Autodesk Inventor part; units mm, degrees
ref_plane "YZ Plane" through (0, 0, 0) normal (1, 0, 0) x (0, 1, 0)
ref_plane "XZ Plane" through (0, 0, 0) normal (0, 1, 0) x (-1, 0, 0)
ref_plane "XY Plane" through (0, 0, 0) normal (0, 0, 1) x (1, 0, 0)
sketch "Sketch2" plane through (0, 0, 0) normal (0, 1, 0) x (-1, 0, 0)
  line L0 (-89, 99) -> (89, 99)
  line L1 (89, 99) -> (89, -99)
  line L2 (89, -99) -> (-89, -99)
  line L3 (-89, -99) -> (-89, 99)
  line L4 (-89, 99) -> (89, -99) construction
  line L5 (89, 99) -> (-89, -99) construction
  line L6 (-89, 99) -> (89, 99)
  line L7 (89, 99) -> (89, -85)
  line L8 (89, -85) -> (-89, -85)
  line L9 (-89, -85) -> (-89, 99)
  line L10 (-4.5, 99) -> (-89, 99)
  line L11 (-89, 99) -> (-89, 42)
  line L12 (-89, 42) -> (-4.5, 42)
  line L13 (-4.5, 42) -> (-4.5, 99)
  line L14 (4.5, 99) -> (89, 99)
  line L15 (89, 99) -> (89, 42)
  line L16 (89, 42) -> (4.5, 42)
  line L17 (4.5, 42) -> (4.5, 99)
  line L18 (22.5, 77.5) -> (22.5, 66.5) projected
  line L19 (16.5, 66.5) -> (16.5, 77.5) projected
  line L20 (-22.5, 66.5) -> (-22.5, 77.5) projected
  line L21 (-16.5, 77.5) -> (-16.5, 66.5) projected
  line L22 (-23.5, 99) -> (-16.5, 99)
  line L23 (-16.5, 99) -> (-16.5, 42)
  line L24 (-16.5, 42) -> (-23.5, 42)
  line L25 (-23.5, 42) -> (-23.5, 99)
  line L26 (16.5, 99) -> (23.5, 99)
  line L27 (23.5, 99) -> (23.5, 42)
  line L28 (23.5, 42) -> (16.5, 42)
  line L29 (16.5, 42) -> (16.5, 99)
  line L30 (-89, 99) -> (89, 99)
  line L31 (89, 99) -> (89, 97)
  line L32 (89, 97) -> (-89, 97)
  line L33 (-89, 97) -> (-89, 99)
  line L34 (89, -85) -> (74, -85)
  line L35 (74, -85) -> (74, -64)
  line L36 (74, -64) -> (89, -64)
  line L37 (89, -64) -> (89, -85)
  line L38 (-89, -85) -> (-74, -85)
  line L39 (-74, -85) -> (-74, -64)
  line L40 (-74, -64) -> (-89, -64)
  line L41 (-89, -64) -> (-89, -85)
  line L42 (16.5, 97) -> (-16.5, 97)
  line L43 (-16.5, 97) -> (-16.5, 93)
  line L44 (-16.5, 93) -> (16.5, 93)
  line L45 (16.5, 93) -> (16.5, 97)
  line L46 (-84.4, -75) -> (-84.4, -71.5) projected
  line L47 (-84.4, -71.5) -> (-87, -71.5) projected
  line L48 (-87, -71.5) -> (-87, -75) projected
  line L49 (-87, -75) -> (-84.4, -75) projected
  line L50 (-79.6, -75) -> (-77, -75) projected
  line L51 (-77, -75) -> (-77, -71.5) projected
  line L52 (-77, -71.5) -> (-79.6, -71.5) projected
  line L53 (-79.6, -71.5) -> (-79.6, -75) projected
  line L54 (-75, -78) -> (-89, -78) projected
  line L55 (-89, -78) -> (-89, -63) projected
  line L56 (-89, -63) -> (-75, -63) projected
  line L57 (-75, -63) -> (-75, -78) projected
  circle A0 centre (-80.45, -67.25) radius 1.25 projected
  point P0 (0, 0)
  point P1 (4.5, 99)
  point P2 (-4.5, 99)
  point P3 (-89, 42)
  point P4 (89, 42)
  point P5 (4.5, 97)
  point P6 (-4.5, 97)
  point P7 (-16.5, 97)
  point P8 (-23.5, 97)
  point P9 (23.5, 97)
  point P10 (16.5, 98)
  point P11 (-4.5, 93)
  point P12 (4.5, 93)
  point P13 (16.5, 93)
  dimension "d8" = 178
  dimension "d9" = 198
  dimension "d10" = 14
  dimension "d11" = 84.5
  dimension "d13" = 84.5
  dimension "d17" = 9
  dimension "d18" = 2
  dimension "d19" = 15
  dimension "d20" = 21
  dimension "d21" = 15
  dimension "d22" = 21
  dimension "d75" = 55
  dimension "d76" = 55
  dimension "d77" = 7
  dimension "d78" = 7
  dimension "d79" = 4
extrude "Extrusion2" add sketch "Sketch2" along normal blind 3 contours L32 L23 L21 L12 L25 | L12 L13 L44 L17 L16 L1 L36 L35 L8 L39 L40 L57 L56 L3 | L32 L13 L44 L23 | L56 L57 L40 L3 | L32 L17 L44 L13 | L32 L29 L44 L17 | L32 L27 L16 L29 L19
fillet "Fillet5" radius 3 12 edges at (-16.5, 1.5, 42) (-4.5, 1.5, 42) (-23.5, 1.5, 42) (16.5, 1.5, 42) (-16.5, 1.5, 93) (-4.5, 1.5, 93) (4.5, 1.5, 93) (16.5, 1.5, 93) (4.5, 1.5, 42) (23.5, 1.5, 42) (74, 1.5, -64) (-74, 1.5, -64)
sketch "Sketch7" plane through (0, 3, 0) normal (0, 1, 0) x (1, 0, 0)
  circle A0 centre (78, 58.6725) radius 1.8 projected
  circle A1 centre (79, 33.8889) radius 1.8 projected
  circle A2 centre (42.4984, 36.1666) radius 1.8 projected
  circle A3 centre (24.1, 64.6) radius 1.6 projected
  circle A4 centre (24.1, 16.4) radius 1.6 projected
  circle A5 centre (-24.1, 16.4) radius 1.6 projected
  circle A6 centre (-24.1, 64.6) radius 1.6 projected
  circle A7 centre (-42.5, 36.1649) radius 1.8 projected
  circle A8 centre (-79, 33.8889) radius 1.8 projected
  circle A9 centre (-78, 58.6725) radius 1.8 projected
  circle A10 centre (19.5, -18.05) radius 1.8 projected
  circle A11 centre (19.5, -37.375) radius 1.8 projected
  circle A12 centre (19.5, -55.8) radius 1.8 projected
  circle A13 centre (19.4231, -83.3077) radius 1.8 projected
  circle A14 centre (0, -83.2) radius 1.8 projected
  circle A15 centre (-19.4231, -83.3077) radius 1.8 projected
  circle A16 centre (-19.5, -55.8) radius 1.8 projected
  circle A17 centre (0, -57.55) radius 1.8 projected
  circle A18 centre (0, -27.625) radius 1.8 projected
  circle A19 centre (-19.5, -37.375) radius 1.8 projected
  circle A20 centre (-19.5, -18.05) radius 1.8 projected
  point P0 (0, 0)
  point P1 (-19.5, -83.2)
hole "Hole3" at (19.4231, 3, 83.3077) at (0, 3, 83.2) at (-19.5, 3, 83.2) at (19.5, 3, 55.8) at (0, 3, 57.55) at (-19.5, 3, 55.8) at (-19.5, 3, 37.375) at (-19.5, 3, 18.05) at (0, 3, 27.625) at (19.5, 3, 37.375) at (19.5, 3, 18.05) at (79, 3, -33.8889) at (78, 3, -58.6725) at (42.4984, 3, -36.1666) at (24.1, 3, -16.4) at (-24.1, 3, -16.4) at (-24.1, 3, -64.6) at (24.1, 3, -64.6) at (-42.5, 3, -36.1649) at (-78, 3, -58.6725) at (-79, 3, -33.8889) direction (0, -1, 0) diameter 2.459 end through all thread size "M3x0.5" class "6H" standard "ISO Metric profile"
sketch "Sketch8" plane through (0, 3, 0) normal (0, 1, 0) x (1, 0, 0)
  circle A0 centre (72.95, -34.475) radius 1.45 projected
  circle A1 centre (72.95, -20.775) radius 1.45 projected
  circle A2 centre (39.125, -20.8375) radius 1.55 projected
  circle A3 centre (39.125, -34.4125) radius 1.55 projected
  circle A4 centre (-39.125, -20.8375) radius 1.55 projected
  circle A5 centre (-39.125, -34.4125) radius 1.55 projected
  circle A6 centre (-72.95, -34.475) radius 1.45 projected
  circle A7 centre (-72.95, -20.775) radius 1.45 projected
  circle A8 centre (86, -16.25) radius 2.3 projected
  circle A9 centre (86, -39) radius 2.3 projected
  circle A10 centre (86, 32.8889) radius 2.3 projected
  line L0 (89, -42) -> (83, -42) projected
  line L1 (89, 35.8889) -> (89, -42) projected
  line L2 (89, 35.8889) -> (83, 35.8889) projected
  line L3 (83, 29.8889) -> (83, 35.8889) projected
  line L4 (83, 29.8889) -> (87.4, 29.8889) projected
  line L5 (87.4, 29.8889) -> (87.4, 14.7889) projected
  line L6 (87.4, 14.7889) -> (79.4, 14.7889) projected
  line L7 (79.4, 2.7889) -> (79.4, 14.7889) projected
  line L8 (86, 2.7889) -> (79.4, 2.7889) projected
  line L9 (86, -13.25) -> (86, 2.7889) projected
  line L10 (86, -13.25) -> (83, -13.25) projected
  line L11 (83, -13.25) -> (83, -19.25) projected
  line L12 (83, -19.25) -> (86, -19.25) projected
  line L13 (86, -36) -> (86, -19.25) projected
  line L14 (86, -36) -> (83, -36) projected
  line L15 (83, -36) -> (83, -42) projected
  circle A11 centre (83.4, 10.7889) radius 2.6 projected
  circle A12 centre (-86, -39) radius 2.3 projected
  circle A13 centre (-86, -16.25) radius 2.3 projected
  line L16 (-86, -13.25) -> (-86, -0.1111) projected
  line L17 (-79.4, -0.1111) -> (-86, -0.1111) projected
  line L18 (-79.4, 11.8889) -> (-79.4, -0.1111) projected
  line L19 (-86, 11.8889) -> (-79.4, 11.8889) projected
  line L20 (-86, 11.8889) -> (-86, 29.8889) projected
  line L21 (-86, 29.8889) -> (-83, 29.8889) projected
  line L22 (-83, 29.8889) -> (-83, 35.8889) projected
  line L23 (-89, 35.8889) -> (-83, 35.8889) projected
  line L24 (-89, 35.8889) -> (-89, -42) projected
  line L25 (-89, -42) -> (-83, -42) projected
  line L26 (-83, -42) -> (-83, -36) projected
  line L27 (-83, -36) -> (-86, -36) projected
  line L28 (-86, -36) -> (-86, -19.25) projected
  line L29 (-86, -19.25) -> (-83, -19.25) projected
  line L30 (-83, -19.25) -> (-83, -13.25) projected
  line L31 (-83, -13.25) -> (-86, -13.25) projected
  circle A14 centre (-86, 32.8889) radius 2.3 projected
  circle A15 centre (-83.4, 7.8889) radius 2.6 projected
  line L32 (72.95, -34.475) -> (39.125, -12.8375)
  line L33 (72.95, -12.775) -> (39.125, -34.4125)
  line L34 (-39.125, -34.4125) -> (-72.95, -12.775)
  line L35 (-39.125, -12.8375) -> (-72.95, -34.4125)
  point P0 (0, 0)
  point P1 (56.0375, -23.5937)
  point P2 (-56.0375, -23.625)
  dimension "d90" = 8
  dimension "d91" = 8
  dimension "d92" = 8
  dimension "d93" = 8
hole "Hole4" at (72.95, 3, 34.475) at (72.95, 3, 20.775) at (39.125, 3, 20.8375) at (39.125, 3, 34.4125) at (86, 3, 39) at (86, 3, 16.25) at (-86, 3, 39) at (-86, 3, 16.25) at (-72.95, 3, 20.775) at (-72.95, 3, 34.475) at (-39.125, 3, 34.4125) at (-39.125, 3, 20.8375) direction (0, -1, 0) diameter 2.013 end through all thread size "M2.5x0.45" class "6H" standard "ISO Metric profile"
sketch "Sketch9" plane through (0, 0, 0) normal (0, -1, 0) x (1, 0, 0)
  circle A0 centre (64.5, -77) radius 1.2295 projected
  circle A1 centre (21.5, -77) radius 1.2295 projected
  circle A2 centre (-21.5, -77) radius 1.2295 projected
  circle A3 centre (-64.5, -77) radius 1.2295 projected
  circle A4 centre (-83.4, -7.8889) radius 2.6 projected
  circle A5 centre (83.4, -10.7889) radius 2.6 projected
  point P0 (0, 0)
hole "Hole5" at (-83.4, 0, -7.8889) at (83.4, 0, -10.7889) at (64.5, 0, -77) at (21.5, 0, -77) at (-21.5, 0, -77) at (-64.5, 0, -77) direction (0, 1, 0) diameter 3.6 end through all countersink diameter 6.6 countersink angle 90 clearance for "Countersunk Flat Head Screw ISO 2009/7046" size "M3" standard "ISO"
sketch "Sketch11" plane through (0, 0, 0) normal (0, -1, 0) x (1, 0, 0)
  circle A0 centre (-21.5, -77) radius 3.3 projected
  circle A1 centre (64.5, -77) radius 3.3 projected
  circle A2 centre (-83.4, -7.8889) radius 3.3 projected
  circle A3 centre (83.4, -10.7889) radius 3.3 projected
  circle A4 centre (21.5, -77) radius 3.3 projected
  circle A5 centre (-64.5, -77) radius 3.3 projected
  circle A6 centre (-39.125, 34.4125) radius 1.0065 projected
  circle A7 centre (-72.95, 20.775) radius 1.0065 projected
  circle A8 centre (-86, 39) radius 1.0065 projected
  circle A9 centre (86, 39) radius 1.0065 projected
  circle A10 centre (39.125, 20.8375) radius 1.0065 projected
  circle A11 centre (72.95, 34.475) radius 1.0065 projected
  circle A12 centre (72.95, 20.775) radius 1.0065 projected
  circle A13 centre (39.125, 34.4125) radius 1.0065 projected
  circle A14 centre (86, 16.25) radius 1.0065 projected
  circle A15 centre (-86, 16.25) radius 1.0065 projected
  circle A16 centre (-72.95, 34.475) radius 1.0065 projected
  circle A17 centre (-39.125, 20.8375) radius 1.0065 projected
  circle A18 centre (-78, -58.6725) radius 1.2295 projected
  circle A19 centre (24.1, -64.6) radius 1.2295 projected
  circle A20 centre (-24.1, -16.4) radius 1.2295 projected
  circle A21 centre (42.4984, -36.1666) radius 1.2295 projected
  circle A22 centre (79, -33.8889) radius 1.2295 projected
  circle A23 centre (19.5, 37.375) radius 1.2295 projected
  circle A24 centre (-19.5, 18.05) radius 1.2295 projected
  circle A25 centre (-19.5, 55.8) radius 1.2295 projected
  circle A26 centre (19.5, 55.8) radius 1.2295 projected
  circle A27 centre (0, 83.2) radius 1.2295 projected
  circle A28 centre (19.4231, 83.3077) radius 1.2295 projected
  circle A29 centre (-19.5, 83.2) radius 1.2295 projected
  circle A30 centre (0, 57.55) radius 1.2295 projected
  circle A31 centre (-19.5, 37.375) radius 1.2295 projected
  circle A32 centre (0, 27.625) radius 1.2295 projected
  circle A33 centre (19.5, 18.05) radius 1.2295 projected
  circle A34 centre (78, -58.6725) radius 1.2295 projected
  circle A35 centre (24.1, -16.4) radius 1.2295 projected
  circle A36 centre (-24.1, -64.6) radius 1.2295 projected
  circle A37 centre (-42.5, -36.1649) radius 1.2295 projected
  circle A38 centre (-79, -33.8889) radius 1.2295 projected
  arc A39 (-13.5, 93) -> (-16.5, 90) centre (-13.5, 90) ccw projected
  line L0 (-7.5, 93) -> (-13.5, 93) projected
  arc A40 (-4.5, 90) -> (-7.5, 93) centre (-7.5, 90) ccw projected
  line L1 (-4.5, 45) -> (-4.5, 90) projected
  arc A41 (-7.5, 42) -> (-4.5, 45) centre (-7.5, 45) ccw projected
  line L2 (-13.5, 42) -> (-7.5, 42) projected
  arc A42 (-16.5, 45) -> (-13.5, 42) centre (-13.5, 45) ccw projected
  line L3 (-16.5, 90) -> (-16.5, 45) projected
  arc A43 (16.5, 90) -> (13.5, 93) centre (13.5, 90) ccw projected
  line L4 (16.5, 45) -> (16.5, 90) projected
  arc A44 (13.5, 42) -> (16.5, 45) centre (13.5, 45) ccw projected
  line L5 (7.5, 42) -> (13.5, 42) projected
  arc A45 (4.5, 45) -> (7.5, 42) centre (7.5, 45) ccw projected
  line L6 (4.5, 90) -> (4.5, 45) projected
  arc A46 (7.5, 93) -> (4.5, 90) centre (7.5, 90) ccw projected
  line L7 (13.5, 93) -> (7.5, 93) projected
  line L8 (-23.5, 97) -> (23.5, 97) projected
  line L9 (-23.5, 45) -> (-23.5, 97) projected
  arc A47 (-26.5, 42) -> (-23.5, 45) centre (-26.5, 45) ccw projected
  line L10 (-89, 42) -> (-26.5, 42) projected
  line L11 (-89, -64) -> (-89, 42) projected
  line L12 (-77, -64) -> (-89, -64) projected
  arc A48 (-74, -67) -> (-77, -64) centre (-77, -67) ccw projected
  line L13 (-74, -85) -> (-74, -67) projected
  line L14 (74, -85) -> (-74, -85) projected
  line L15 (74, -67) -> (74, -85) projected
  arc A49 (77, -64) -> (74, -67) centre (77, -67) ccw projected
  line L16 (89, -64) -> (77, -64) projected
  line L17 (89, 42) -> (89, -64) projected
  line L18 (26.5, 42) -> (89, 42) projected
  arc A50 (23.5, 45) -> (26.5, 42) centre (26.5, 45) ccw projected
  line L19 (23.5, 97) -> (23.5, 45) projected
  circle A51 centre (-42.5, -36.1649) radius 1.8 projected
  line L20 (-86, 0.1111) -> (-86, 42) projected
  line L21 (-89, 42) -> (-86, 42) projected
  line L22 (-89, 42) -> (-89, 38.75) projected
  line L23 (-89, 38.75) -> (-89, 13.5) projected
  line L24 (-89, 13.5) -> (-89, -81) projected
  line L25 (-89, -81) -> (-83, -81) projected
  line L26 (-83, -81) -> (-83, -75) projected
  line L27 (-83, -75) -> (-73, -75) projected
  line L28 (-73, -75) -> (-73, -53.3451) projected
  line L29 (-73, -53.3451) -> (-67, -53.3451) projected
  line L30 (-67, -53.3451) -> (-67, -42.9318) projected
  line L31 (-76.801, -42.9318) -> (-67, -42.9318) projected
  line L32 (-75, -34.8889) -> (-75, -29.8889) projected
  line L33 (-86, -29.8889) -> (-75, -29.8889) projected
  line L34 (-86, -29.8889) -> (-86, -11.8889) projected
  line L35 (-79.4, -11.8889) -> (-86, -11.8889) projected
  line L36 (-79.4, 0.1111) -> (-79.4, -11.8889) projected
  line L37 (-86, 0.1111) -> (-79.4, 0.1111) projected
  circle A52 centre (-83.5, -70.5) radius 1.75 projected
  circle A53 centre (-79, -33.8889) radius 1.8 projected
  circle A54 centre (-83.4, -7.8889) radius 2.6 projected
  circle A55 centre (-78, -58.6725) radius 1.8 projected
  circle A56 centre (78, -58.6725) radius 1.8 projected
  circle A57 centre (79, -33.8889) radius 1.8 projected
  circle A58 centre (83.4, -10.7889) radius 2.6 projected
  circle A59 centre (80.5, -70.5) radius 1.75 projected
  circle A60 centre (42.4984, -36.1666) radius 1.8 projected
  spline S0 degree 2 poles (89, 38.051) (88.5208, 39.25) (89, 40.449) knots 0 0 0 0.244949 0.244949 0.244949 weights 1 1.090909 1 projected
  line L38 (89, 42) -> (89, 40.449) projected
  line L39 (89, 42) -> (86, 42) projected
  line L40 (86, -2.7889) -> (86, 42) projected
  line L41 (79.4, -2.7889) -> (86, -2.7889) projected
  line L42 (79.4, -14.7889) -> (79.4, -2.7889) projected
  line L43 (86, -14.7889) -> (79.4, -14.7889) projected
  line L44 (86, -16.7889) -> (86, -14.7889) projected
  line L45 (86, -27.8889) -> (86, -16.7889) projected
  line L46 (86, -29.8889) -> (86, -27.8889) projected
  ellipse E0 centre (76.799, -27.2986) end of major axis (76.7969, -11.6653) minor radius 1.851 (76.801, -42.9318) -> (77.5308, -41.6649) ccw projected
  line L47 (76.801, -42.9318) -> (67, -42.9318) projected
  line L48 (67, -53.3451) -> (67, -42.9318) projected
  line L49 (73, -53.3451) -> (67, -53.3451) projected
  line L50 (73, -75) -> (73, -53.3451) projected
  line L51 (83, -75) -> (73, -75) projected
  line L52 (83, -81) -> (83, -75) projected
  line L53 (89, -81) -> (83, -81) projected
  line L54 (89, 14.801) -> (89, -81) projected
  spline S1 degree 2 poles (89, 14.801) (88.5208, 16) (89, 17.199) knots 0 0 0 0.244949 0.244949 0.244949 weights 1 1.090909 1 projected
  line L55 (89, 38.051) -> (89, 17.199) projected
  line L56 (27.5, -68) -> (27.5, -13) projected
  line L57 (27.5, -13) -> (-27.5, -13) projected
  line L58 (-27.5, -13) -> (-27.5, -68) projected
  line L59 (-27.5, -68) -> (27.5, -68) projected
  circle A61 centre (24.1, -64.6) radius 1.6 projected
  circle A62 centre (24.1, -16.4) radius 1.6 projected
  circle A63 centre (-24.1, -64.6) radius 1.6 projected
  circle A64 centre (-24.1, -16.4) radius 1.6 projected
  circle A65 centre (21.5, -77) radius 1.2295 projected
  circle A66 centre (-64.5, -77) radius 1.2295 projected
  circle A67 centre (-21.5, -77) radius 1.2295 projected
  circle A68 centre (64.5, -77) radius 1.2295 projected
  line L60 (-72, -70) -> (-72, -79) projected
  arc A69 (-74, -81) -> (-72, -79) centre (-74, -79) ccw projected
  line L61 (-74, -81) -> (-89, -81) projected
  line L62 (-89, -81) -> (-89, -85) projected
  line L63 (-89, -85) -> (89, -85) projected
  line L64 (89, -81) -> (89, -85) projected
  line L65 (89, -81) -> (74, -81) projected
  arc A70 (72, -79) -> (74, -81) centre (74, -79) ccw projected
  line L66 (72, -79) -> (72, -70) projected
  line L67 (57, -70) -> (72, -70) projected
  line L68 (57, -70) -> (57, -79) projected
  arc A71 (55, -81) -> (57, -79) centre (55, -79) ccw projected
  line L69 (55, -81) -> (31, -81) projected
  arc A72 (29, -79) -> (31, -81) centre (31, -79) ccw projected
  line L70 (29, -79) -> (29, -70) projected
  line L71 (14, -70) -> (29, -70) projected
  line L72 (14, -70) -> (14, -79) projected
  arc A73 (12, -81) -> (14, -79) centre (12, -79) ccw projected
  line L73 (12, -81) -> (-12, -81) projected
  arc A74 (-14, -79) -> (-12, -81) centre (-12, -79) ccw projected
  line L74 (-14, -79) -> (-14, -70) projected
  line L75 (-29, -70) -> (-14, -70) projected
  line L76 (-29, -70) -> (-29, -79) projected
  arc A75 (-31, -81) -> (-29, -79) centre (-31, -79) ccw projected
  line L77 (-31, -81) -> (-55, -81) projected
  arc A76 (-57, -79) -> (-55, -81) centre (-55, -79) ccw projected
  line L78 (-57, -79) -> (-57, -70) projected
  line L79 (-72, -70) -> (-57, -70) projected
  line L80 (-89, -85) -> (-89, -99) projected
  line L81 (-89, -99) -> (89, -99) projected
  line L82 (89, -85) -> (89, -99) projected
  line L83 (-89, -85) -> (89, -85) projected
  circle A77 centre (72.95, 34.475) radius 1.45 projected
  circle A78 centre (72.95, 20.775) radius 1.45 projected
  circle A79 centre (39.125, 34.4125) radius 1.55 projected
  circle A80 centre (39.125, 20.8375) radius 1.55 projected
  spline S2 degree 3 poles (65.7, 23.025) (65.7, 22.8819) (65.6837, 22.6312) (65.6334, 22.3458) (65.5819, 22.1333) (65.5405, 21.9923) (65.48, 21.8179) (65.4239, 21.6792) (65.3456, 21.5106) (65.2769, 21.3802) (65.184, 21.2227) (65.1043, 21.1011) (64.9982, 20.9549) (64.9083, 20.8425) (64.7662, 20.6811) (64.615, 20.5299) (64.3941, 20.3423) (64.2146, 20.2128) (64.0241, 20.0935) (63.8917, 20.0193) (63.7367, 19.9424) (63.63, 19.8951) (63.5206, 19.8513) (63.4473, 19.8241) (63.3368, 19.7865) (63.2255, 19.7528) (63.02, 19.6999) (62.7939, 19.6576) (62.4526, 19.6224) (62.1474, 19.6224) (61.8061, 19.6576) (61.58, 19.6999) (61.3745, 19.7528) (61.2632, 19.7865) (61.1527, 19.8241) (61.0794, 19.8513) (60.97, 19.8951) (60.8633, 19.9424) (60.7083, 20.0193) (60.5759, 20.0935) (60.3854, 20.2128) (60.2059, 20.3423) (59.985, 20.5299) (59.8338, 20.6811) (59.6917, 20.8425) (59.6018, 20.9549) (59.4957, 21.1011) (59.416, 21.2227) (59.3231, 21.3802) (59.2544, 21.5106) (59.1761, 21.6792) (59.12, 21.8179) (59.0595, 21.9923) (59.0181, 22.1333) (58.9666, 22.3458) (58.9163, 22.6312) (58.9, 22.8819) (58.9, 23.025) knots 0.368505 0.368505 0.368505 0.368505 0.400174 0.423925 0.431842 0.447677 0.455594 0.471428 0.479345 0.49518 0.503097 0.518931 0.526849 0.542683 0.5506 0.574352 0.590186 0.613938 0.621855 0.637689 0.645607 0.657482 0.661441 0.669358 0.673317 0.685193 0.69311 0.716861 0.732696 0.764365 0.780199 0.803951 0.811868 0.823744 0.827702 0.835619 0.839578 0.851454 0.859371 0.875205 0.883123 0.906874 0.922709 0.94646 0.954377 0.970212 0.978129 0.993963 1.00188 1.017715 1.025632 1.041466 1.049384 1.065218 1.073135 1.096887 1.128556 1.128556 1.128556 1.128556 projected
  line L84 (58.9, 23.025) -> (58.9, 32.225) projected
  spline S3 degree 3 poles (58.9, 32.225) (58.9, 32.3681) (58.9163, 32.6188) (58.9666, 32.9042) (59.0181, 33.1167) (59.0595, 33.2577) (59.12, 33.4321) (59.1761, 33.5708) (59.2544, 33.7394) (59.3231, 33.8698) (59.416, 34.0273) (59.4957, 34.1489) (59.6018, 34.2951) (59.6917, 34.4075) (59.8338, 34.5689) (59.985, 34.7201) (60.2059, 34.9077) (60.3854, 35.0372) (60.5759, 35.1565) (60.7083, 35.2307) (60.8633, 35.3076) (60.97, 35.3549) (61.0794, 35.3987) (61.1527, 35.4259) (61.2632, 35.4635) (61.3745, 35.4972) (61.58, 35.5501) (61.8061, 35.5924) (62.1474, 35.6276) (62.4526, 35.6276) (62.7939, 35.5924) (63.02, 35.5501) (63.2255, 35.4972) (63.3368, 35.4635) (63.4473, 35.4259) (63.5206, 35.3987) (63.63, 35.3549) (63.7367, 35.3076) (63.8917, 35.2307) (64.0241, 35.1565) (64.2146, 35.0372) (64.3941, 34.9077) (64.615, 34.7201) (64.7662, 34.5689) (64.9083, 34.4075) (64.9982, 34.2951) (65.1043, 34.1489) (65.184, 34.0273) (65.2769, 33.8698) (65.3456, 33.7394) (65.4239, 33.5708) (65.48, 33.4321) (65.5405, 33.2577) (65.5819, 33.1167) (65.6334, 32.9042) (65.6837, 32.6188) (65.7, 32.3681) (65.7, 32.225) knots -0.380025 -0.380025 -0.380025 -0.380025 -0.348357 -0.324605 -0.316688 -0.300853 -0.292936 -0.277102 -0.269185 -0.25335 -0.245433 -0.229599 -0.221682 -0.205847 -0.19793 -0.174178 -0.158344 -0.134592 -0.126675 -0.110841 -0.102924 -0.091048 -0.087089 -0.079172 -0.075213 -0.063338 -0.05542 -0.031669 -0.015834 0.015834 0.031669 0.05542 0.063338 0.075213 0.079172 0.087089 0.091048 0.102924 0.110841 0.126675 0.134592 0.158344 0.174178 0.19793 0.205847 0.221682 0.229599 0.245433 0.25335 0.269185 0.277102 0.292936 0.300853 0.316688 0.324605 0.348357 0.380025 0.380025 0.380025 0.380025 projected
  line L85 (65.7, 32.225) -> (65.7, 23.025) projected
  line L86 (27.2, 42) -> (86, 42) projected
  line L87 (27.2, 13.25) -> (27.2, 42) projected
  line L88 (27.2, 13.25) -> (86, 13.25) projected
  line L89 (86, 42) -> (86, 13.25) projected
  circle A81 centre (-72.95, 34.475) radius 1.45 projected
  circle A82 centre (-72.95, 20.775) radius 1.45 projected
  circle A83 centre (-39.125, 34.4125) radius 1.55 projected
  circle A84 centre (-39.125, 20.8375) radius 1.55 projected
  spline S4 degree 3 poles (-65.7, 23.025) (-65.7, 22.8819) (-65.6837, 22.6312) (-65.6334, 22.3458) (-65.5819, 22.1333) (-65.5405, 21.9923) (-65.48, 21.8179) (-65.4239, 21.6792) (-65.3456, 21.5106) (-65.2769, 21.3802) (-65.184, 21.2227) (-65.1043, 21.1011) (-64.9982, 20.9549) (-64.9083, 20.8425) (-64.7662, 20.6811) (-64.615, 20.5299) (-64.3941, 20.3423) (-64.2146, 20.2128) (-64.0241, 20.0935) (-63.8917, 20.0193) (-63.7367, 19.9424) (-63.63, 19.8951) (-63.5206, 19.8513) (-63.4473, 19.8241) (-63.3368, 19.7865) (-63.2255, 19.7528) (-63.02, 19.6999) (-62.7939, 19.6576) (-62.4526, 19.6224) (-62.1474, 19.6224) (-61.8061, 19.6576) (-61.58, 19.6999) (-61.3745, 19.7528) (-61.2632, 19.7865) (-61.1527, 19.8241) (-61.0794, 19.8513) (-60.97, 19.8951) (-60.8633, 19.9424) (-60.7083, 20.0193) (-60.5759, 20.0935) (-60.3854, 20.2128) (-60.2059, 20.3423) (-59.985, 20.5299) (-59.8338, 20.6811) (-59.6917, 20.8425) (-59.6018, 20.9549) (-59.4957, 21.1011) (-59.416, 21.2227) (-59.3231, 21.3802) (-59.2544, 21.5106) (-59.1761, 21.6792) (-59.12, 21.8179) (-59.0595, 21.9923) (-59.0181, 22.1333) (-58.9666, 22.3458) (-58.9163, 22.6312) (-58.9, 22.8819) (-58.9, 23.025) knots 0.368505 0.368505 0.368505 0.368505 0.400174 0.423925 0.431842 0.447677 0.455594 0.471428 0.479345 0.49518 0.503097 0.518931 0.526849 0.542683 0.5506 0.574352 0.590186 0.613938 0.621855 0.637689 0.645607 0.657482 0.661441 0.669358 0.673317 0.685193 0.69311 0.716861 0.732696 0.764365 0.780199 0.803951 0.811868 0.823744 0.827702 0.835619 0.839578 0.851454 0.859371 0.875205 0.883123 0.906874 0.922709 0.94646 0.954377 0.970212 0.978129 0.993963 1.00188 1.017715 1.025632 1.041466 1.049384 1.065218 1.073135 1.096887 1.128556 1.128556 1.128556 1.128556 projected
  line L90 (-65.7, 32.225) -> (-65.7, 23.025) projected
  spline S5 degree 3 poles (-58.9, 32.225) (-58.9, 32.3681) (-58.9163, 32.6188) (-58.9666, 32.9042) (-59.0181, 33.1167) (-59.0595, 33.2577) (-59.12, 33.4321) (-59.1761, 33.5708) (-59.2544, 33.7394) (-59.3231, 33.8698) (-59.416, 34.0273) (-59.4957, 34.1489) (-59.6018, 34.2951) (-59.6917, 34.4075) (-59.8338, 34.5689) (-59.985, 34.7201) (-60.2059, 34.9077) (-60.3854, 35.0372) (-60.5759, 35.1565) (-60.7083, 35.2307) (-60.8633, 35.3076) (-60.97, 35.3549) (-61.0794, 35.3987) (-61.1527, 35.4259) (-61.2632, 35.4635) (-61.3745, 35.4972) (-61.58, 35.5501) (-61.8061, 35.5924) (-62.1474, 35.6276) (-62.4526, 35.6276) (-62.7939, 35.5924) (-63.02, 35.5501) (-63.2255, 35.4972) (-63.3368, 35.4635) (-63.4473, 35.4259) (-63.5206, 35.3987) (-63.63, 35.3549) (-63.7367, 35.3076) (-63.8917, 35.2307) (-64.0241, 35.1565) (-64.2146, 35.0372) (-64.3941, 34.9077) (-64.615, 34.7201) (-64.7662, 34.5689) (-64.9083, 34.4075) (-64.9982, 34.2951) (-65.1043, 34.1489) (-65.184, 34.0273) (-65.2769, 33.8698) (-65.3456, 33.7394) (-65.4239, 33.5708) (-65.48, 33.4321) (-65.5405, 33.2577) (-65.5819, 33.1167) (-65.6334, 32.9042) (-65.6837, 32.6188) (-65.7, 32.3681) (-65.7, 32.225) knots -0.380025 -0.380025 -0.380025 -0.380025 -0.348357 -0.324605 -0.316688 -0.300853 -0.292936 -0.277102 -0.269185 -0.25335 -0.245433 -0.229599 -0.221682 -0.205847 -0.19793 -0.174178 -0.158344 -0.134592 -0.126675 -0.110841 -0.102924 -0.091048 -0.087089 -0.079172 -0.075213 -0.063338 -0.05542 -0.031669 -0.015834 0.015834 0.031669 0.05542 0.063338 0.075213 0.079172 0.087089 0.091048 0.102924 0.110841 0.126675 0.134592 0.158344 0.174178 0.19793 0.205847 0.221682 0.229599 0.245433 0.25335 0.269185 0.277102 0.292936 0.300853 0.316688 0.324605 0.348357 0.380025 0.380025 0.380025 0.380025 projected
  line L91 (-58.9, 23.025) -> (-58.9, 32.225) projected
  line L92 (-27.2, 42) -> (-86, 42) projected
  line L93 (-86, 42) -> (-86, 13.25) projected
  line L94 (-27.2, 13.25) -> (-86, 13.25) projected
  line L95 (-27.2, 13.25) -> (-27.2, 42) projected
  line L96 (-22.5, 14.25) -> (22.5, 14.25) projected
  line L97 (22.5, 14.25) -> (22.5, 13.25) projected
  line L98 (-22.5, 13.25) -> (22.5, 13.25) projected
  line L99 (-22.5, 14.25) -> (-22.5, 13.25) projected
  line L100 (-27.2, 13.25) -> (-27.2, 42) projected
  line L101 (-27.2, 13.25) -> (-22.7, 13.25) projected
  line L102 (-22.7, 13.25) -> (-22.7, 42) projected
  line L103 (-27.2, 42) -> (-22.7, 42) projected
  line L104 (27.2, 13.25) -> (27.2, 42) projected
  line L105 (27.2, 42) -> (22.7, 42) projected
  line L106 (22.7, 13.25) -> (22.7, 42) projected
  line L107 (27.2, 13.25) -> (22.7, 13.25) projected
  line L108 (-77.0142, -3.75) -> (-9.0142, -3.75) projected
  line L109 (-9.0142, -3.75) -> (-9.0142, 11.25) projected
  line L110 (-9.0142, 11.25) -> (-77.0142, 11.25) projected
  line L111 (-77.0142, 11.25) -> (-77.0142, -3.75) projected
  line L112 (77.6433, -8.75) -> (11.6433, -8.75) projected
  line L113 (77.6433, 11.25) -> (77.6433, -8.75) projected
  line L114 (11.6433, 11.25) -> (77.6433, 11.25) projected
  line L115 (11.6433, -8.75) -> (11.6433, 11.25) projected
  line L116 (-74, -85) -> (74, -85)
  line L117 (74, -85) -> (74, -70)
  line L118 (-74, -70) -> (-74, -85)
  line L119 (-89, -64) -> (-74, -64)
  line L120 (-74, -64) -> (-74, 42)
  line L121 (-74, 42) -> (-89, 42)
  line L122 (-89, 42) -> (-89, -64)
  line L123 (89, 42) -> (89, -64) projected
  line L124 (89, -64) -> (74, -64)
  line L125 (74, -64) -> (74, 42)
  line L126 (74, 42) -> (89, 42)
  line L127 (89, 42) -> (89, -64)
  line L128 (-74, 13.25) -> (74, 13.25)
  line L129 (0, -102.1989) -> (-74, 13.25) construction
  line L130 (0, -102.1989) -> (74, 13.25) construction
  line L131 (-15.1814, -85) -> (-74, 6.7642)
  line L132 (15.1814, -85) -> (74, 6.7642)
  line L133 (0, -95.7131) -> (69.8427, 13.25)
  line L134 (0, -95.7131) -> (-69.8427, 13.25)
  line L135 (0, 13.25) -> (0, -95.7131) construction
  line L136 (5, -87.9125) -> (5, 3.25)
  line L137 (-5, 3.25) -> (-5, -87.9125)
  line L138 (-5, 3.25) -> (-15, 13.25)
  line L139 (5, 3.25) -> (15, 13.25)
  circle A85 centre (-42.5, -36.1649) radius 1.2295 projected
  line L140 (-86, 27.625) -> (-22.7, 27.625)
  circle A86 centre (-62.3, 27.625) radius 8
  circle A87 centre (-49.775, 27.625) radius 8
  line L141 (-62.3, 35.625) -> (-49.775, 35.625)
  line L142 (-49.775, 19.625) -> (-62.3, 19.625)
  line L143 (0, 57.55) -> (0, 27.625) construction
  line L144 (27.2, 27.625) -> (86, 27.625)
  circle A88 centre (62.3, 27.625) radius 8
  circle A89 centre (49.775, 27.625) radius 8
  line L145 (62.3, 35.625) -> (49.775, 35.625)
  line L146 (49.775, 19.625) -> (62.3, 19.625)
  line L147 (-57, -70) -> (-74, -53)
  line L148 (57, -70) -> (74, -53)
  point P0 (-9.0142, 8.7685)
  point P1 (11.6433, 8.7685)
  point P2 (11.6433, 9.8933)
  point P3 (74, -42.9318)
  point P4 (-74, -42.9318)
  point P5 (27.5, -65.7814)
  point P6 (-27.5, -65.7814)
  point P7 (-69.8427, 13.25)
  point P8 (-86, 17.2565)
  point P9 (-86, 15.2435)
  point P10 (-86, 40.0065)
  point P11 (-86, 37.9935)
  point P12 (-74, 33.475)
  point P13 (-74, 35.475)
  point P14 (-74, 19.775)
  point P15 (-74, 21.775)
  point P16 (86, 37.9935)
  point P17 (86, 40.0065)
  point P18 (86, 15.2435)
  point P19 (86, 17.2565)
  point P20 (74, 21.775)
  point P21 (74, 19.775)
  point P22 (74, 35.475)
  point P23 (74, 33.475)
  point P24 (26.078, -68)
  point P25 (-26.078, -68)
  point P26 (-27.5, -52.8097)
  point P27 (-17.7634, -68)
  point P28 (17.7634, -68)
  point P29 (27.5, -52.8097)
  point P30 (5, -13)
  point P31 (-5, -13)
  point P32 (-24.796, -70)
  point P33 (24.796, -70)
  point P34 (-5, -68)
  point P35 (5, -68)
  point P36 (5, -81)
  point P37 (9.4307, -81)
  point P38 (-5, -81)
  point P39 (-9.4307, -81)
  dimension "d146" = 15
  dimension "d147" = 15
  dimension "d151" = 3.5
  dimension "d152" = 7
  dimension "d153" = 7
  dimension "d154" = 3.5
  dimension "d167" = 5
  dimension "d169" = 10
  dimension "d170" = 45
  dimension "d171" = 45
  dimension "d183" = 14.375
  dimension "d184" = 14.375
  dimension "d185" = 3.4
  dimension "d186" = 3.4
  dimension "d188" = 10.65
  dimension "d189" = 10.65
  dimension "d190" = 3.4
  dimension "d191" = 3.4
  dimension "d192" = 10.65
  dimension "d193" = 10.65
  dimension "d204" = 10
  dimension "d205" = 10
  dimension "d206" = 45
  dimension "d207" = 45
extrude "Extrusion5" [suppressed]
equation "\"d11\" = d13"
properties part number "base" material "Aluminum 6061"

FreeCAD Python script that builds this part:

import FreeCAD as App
import Part
import Sketcher
from FreeCAD import Vector


def edges_at(feature, points):
    """Names of the edges that pass closest to the given points."""
    edges = feature.Shape.Edges
    near = lambda p: min(range(len(edges)), key=lambda i: edges[i].distToShape(Part.Vertex(*p))[0])
    return sorted({f"Edge{near(p) + 1}" for p in points})

doc = App.newDocument("Part")
body = doc.addObject("PartDesign::Body", "Body")

# Sketch on XZ plane
sketch1 = body.newObject("Sketcher::SketchObject", "Sketch")
sketch1.AttachmentSupport = (doc.getObject("XZ_Plane"), [""])
sketch1.MapMode = "FlatFace"
sketch1.addGeometry([
    Part.LineSegment(Vector(24, 97, 0), Vector(24, 42, 0)),  # 0
    Part.LineSegment(Vector(24, 42, 0), Vector(89, 42, 0)),  # 1
    Part.LineSegment(Vector(89, 42, 0), Vector(89, -64, 0)),  # 2
    Part.LineSegment(Vector(89, -64, 0), Vector(74, -64, 0)),  # 3
    Part.LineSegment(Vector(74, -64, 0), Vector(74, -85, 0)),  # 4
    Part.LineSegment(Vector(74, -85, 0), Vector(-74, -85, 0)),  # 5
    Part.LineSegment(Vector(-74, -85, 0), Vector(-74, -64, 0)),  # 6
    Part.LineSegment(Vector(-74, -64, 0), Vector(-89, -64, 0)),  # 7
    Part.LineSegment(Vector(-89, -64, 0), Vector(-89, 42, 0)),  # 8
    Part.LineSegment(Vector(-89, 42, 0), Vector(-24, 42, 0)),  # 9
    Part.LineSegment(Vector(-24, 42, 0), Vector(-24, 97, 0)),  # 10
    Part.LineSegment(Vector(-24, 97, 0), Vector(24, 97, 0)),  # 11
    Part.LineSegment(Vector(16, 93, 0), Vector(4, 93, 0)),  # 12
    Part.LineSegment(Vector(4, 93, 0), Vector(4, 42, 0)),  # 13
    Part.LineSegment(Vector(4, 42, 0), Vector(16, 42, 0)),  # 14
    Part.LineSegment(Vector(16, 42, 0), Vector(16, 93, 0)),  # 15
    Part.LineSegment(Vector(-4, 42, 0), Vector(-4, 93, 0)),  # 16
    Part.LineSegment(Vector(-4, 93, 0), Vector(-16, 93, 0)),  # 17
    Part.LineSegment(Vector(-16, 93, 0), Vector(-16, 42, 0)),  # 18
    Part.LineSegment(Vector(-16, 42, 0), Vector(-4, 42, 0)),  # 19
], False)
sketch1.addConstraint([
    Sketcher.Constraint("Coincident", 0, 2, 1, 1),
    Sketcher.Constraint("Coincident", 1, 2, 2, 1),
    Sketcher.Constraint("Coincident", 2, 2, 3, 1),
    Sketcher.Constraint("Coincident", 3, 2, 4, 1),
    Sketcher.Constraint("Coincident", 4, 2, 5, 1),
    Sketcher.Constraint("Coincident", 5, 2, 6, 1),
    Sketcher.Constraint("Coincident", 6, 2, 7, 1),
    Sketcher.Constraint("Coincident", 7, 2, 8, 1),
    Sketcher.Constraint("Coincident", 8, 2, 9, 1),
    Sketcher.Constraint("Coincident", 9, 2, 10, 1),
    Sketcher.Constraint("Coincident", 10, 2, 11, 1),
    Sketcher.Constraint("Coincident", 11, 2, 0, 1),
    Sketcher.Constraint("Coincident", 12, 2, 13, 1),
    Sketcher.Constraint("Coincident", 13, 2, 14, 1),
    Sketcher.Constraint("Coincident", 14, 2, 15, 1),
    Sketcher.Constraint("Coincident", 15, 2, 12, 1),
    Sketcher.Constraint("Coincident", 16, 2, 17, 1),
    Sketcher.Constraint("Coincident", 17, 2, 18, 1),
    Sketcher.Constraint("Coincident", 18, 2, 19, 1),
    Sketcher.Constraint("Coincident", 19, 2, 16, 1),
    Sketcher.Constraint("Vertical", 0),
    Sketcher.Constraint("Horizontal", 1),
    Sketcher.Constraint("Vertical", 2),
    Sketcher.Constraint("Horizontal", 3),
    Sketcher.Constraint("Vertical", 4),
    Sketcher.Constraint("Horizontal", 5),
    Sketcher.Constraint("Vertical", 6),
    Sketcher.Constraint("Horizontal", 7),
    Sketcher.Constraint("Vertical", 8),
    Sketcher.Constraint("Horizontal", 9),
    Sketcher.Constraint("Vertical", 10),
    Sketcher.Constraint("Horizontal", 11),
    Sketcher.Constraint("Horizontal", 12),
    Sketcher.Constraint("Vertical", 13),
    Sketcher.Constraint("Horizontal", 14),
    Sketcher.Constraint("Vertical", 15),
    Sketcher.Constraint("Vertical", 16),
    Sketcher.Constraint("Horizontal", 17),
    Sketcher.Constraint("Vertical", 18),
    Sketcher.Constraint("Horizontal", 19),
    Sketcher.Constraint("Symmetric", 3, 2, 6, 2, -2),
    Sketcher.Constraint("Symmetric", 1, 2, 8, 2, -2),
    Sketcher.Constraint("Symmetric", 12, 2, 16, 2, -2),
    Sketcher.Constraint("Symmetric", 14, 2, 18, 2, -2),
    Sketcher.Constraint("Horizontal", 9, 2, 13, 2),
    Sketcher.Constraint("Equal", 1, 9),
    Sketcher.Constraint("DistanceX", 3, 2, 3, 1, 15.0),
    Sketcher.Constraint("DistanceY", 0, 2, 0, 1, 55.0),
    Sketcher.Constraint("DistanceY", 4, 2, 4, 1, 21.0),
    Sketcher.Constraint("DistanceX", 8, 2, 1, 2, 178.0),
    Sketcher.Constraint("DistanceY", 12, 2, 11, 2, 4.0),
    Sketcher.Constraint("DistanceX", 14, 2, 0, 2, 7.0),
    Sketcher.Constraint("DistanceX", 16, 2, 12, 2, 9.0),
    Sketcher.Constraint("DistanceX", 16, 2, 15, 2, 21.0),
    Sketcher.Constraint("DistanceY", 2, 2, 2, 1, 106.0),
    Sketcher.Constraint("DistanceY", -1, 1, 0, 2, 42.0),
])
pad1 = body.newObject("PartDesign::Pad", "Pad")
pad1.Profile = sketch1
pad1.Length = 3
pad1.Reversed = True
doc.recompute()

fillet = body.newObject("PartDesign::Fillet", "Fillet")
fillet.Base = (pad1, edges_at(pad1, [
    (-16.5, 1.5, 42),
    (-4.5, 1.5, 42),
    (-23.5, 1.5, 42),
    (16.5, 1.5, 42),
    (-16.5, 1.5, 93),
    (-4.5, 1.5, 93),
    (4.5, 1.5, 93),
    (16.5, 1.5, 93),
    (4.5, 1.5, 42),
    (23.5, 1.5, 42),
    (74, 1.5, -64),
    (-74, 1.5, -64),
]))
fillet.Radius = 3

# Sketch on XZ plane
sketch2 = body.newObject("Sketcher::SketchObject", "Sketch001")
sketch2.AttachmentSupport = (doc.getObject("XZ_Plane"), [""])
sketch2.MapMode = "FlatFace"
sketch2.AttachmentOffset = App.Placement(Vector(0, 0, -3), App.Rotation())
sketch2.addGeometry([
    Part.Circle(Vector(19.4, 83.3, 0), Vector(0, 0, 1), 1.2),  # 0
    Part.Circle(Vector(0, 83.2, 0), Vector(0, 0, 1), 1.2),  # 1
    Part.Circle(Vector(-19.5, 83.2, 0), Vector(0, 0, 1), 1.2),  # 2
    Part.Circle(Vector(19.5, 55.8, 0), Vector(0, 0, 1), 1.2),  # 3
    Part.Circle(Vector(0, 57.5, 0), Vector(0, 0, 1), 1.2),  # 4
    Part.Circle(Vector(-19.5, 55.8, 0), Vector(0, 0, 1), 1.2),  # 5
    Part.Circle(Vector(-19.5, 37.4, 0), Vector(0, 0, 1), 1.2),  # 6
    Part.Circle(Vector(-19.5, 18.1, 0), Vector(0, 0, 1), 1.2),  # 7
    Part.Circle(Vector(0, 27.6, 0), Vector(0, 0, 1), 1.2),  # 8
    Part.Circle(Vector(19.5, 37.4, 0), Vector(0, 0, 1), 1.2),  # 9
    Part.Circle(Vector(19.5, 18.1, 0), Vector(0, 0, 1), 1.2),  # 10
    Part.Circle(Vector(79, -33.9, 0), Vector(0, 0, 1), 1.2),  # 11
    Part.Circle(Vector(78, -58.7, 0), Vector(0, 0, 1), 1.2),  # 12
    Part.Circle(Vector(42.5, -36.2, 0), Vector(0, 0, 1), 1.2),  # 13
    Part.Circle(Vector(24.1, -16.4, 0), Vector(0, 0, 1), 1.2),  # 14
    Part.Circle(Vector(-24.1, -16.4, 0), Vector(0, 0, 1), 1.2),  # 15
    Part.Circle(Vector(-24.1, -64.6, 0), Vector(0, 0, 1), 1.2),  # 16
    Part.Circle(Vector(24.1, -64.6, 0), Vector(0, 0, 1), 1.2),  # 17
    Part.Circle(Vector(-42.5, -36.2, 0), Vector(0, 0, 1), 1.2),  # 18
    Part.Circle(Vector(-78, -58.7, 0), Vector(0, 0, 1), 1.2),  # 19
    Part.Circle(Vector(-79, -33.9, 0), Vector(0, 0, 1), 1.2),  # 20
], False)
sketch2.addConstraint([
    Sketcher.Constraint("Equal", 0, 1),
    Sketcher.Constraint("Equal", 1, 2),
    Sketcher.Constraint("Equal", 2, 3),
    Sketcher.Constraint("Equal", 3, 4),
    Sketcher.Constraint("Equal", 4, 5),
    Sketcher.Constraint("Equal", 5, 6),
    Sketcher.Constraint("Equal", 6, 7),
    Sketcher.Constraint("Equal", 7, 8),
    Sketcher.Constraint("Equal", 8, 9),
    Sketcher.Constraint("Equal", 9, 10),
    Sketcher.Constraint("Equal", 10, 11),
    Sketcher.Constraint("Equal", 11, 12),
    Sketcher.Constraint("Equal", 12, 13),
    Sketcher.Constraint("Equal", 13, 14),
    Sketcher.Constraint("Equal", 14, 15),
    Sketcher.Constraint("Equal", 15, 16),
    Sketcher.Constraint("Equal", 16, 17),
    Sketcher.Constraint("Equal", 17, 18),
    Sketcher.Constraint("Equal", 18, 19),
    Sketcher.Constraint("Equal", 19, 20),
    Sketcher.Constraint("Symmetric", 3, 3, 5, 3, -2),
    Sketcher.Constraint("Symmetric", 6, 3, 9, 3, -2),
    Sketcher.Constraint("Symmetric", 7, 3, 10, 3, -2),
    Sketcher.Constraint("Symmetric", 14, 3, 15, 3, -2),
    Sketcher.Constraint("Symmetric", 16, 3, 17, 3, -2),
    Sketcher.Constraint("Symmetric", 12, 3, 19, 3, -2),
    Sketcher.Constraint("Symmetric", 11, 3, 20, 3, -2),
    Sketcher.Constraint("PointOnObject", 1, 3, -2),
    Sketcher.Constraint("PointOnObject", 4, 3, -2),
    Sketcher.Constraint("PointOnObject", 8, 3, -2),
    Sketcher.Constraint("Horizontal", 1, 3, 2, 3),
    Sketcher.Constraint("Vertical", 2, 3, 5, 3),
    Sketcher.Constraint("Vertical", 5, 3, 6, 3),
    Sketcher.Constraint("Vertical", 6, 3, 7, 3),
    Sketcher.Constraint("Vertical", 15, 3, 16, 3),
    Sketcher.Constraint("Diameter", 0, 2.459),
    Sketcher.Constraint("DistanceX", -1, 1, 11, 3, 79.0),
    Sketcher.Constraint("DistanceX", -1, 1, 12, 3, 78.0),
    Sketcher.Constraint("DistanceX", 2, 3, 3, 3, 39.0),
    Sketcher.Constraint("DistanceX", 18, 3, 7, 3, 23.0),
    Sketcher.Constraint("DistanceY", -1, 1, 1, 3, 83.2),
    Sketcher.Constraint("DistanceY", -1, 1, 3, 3, 55.8),
    Sketcher.Constraint("DistanceX", -1, 1, 14, 3, 24.1),
    Sketcher.Constraint("DistanceY", 14, 3, -1, 1, 16.4),
    Sketcher.Constraint("DistanceY", 16, 3, -1, 1, 64.6),
    Sketcher.Constraint("DistanceY", 7, 3, 4, 3, 39.5),
    Sketcher.Constraint("DistanceY", -1, 1, 4, 3, 57.55),
    Sketcher.Constraint("DistanceY", 8, 3, 6, 3, 9.75),
    Sketcher.Constraint("DistanceX", -1, 1, 0, 3, 19.423),
    Sketcher.Constraint("DistanceY", -1, 1, 6, 3, 37.375),
    Sketcher.Constraint("DistanceY", 11, 3, -1, 1, 33.889),
    Sketcher.Constraint("DistanceY", 18, 3, -1, 1, 36.165),
    Sketcher.Constraint("DistanceY", 12, 3, 13, 3, 22.506),
    Sketcher.Constraint("DistanceY", -1, 1, 0, 3, 83.3077),
    Sketcher.Constraint("DistanceY", 12, 3, -1, 1, 58.6725),
    Sketcher.Constraint("DistanceX", -1, 1, 13, 3, 42.4984),
])
doc.recompute()
hole = body.newObject("PartDesign::Hole", "Hole")
hole.Profile = sketch2
hole.ThreadType = "None"
hole.Diameter = 2.459
hole.DepthType = "ThroughAll"
hole.Reversed = True

# Sketch on XZ plane
sketch3 = body.newObject("Sketcher::SketchObject", "Sketch002")
sketch3.AttachmentSupport = (doc.getObject("XZ_Plane"), [""])
sketch3.MapMode = "FlatFace"
sketch3.AttachmentOffset = App.Placement(Vector(0, 0, -3), App.Rotation())
sketch3.addGeometry([
    Part.Circle(Vector(73, 34.5, 0), Vector(0, 0, 1), 1),  # 0
    Part.Circle(Vector(73, 20.8, 0), Vector(0, 0, 1), 1),  # 1
    Part.Circle(Vector(39.1, 20.8, 0), Vector(0, 0, 1), 1),  # 2
    Part.Circle(Vector(39.1, 34.4, 0), Vector(0, 0, 1), 1),  # 3
    Part.Circle(Vector(86, 39, 0), Vector(0, 0, 1), 1),  # 4
    Part.Circle(Vector(86, 16.2, 0), Vector(0, 0, 1), 1),  # 5
    Part.Circle(Vector(-86, 39, 0), Vector(0, 0, 1), 1),  # 6
    Part.Circle(Vector(-86, 16.2, 0), Vector(0, 0, 1), 1),  # 7
    Part.Circle(Vector(-73, 20.8, 0), Vector(0, 0, 1), 1),  # 8
    Part.Circle(Vector(-73, 34.5, 0), Vector(0, 0, 1), 1),  # 9
    Part.Circle(Vector(-39.1, 34.4, 0), Vector(0, 0, 1), 1),  # 10
    Part.Circle(Vector(-39.1, 20.8, 0), Vector(0, 0, 1), 1),  # 11
], False)
sketch3.addConstraint([
    Sketcher.Constraint("Equal", 0, 1),
    Sketcher.Constraint("Equal", 1, 2),
    Sketcher.Constraint("Equal", 2, 3),
    Sketcher.Constraint("Equal", 3, 4),
    Sketcher.Constraint("Equal", 4, 5),
    Sketcher.Constraint("Equal", 5, 6),
    Sketcher.Constraint("Equal", 6, 7),
    Sketcher.Constraint("Equal", 7, 8),
    Sketcher.Constraint("Equal", 8, 9),
    Sketcher.Constraint("Equal", 9, 10),
    Sketcher.Constraint("Equal", 10, 11),
    Sketcher.Constraint("Symmetric", 4, 3, 6, 3, -2),
    Sketcher.Constraint("Symmetric", 5, 3, 7, 3, -2),
    Sketcher.Constraint("Symmetric", 1, 3, 8, 3, -2),
    Sketcher.Constraint("Symmetric", 0, 3, 9, 3, -2),
    Sketcher.Constraint("Symmetric", 3, 3, 10, 3, -2),
    Sketcher.Constraint("Symmetric", 2, 3, 11, 3, -2),
    Sketcher.Constraint("Vertical", 0, 3, 1, 3),
    Sketcher.Constraint("Vertical", 2, 3, 3, 3),
    Sketcher.Constraint("Vertical", 4, 3, 5, 3),
    Sketcher.Constraint("Diameter", 0, 2.013),
    Sketcher.Constraint("DistanceX", -1, 1, 4, 3, 86.0),
    Sketcher.Constraint("DistanceY", -1, 1, 4, 3, 39.0),
    Sketcher.Constraint("DistanceY", 1, 3, 0, 3, 13.7),
    Sketcher.Constraint("DistanceX", 8, 3, 1, 3, 145.9),
    Sketcher.Constraint("DistanceY", -1, 1, 5, 3, 16.25),
    Sketcher.Constraint("DistanceX", 10, 3, 3, 3, 78.25),
    Sketcher.Constraint("DistanceY", -1, 1, 0, 3, 34.475),
    Sketcher.Constraint("DistanceY", 2, 3, 3, 3, 13.575),
    Sketcher.Constraint("DistanceY", -1, 1, 2, 3, 20.8375),
])
doc.recompute()
hole2 = body.newObject("PartDesign::Hole", "Hole001")
hole2.Profile = sketch3
hole2.ThreadType = "None"
hole2.Diameter = 2.013
hole2.DepthType = "ThroughAll"
hole2.Reversed = True

# Sketch on XZ plane
sketch4 = body.newObject("Sketcher::SketchObject", "Sketch003")
sketch4.AttachmentSupport = (doc.getObject("XZ_Plane"), [""])
sketch4.MapMode = "FlatFace"
sketch4.addGeometry([
    Part.Circle(Vector(-83.4, -7.9, 0), Vector(0, 0, 1), 1.8),  # 0
    Part.Circle(Vector(83.4, -10.8, 0), Vector(0, 0, 1), 1.8),  # 1
    Part.Circle(Vector(64.5, -77, 0), Vector(0, 0, 1), 1.8),  # 2
    Part.Circle(Vector(21.5, -77, 0), Vector(0, 0, 1), 1.8),  # 3
    Part.Circle(Vector(-21.5, -77, 0), Vector(0, 0, 1), 1.8),  # 4
    Part.Circle(Vector(-64.5, -77, 0), Vector(0, 0, 1), 1.8),  # 5
], False)
sketch4.addConstraint([
    Sketcher.Constraint("Equal", 0, 1),
    Sketcher.Constraint("Equal", 1, 2),
    Sketcher.Constraint("Equal", 2, 3),
    Sketcher.Constraint("Equal", 3, 4),
    Sketcher.Constraint("Equal", 4, 5),
    Sketcher.Constraint("Symmetric", 3, 3, 4, 3, -2),
    Sketcher.Constraint("Symmetric", 2, 3, 5, 3, -2),
    Sketcher.Constraint("Horizontal", 2, 3, 3, 3),
    Sketcher.Constraint("Diameter", 0, 3.6),
    Sketcher.Constraint("DistanceY", 2, 3, -1, 1, 77.0),
    Sketcher.Constraint("DistanceX", 3, 3, 2, 3, 43.0),
    Sketcher.Constraint("DistanceX", 4, 3, 3, 3, 43.0),
    Sketcher.Constraint("DistanceX", 0, 3, -1, 1, 83.4),
    Sketcher.Constraint("DistanceX", -1, 1, 1, 3, 83.4),
    Sketcher.Constraint("DistanceY", 1, 3, 0, 3, 2.9),
    Sketcher.Constraint("DistanceY", 0, 3, -1, 1, 7.889),
])
doc.recompute()
hole3 = body.newObject("PartDesign::Hole", "Hole002")
hole3.Profile = sketch4
hole3.ThreadType = "None"
hole3.Diameter = 3.6
hole3.DepthType = "ThroughAll"
hole3.HoleCutType = "Countersink"
hole3.HoleCutDiameter = 6.6
hole3.HoleCutCountersinkAngle = 90

doc.recompute()
